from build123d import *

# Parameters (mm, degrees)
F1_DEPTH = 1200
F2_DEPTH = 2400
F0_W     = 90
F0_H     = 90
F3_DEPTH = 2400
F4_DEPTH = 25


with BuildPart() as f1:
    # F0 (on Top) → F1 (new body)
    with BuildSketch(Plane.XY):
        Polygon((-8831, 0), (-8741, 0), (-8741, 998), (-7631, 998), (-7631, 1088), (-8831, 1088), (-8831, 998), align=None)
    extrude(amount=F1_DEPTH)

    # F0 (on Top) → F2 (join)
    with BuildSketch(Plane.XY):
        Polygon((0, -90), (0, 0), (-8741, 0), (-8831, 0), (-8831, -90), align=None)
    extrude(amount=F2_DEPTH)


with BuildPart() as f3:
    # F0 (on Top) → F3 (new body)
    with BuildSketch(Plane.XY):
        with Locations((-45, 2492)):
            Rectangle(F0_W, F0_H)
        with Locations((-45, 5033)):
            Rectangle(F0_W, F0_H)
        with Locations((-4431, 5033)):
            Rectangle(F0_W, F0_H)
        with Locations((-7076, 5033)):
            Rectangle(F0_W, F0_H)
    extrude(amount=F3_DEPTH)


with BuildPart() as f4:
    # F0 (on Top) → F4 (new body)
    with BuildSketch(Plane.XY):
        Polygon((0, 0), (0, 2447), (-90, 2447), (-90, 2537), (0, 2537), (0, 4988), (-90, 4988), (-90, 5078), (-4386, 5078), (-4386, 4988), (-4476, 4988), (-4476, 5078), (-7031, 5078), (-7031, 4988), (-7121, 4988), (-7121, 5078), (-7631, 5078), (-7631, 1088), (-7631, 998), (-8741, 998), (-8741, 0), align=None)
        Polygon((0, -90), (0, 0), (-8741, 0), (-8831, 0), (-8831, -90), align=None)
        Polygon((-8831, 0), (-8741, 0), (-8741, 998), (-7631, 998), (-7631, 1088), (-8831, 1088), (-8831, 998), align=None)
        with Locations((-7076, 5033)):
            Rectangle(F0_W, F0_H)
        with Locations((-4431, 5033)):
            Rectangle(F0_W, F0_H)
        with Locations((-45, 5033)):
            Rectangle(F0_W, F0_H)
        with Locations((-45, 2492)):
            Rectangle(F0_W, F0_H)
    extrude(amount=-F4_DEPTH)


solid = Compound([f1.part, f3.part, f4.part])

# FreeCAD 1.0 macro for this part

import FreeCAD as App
import Part
import Sketcher
Q = App.Units.Quantity

doc = App.newDocument("Part")
body = doc.addObject("PartDesign::Body", "Body")

sketch1 = body.newObject("Sketcher::SketchObject", "Sketch")
sketch1.AttachmentSupport = (doc.getObject("XY_Plane"), [""])
sketch1.MapMode = "FlatFace"
sketch1.addGeometry([
    Part.LineSegment(App.Vector(-8831, 0, 0), App.Vector(-8741, 0, 0)),
    Part.LineSegment(App.Vector(-8741, 0, 0), App.Vector(-8741, 998, 0)),
    Part.LineSegment(App.Vector(-8741, 998, 0), App.Vector(-7631, 998, 0)),
    Part.LineSegment(App.Vector(-7631, 998, 0), App.Vector(-7631, 1088, 0)),
    Part.LineSegment(App.Vector(-7631, 1088, 0), App.Vector(-8831, 1088, 0)),
    Part.LineSegment(App.Vector(-8831, 1088, 0), App.Vector(-8831, 0, 0)),
], False)
sketch1.addConstraint([
    Sketcher.Constraint("Coincident", 0, 2, 1, 1),
    Sketcher.Constraint("Coincident", 1, 2, 2, 1),
    Sketcher.Constraint("Coincident", 2, 2, 3, 1),
    Sketcher.Constraint("Coincident", 3, 2, 4, 1),
    Sketcher.Constraint("Coincident", 4, 2, 5, 1),
    Sketcher.Constraint("Coincident", 5, 2, 0, 1),
    Sketcher.Constraint("Horizontal", 0),
    Sketcher.Constraint("Vertical", 1),
    Sketcher.Constraint("Horizontal", 2),
    Sketcher.Constraint("Vertical", 3),
    Sketcher.Constraint("Horizontal", 4),
    Sketcher.Constraint("Vertical", 5),
    Sketcher.Constraint("PointOnObject", 0, 2, -1),
    Sketcher.Constraint("Equal", 0, 3),
    Sketcher.Constraint("DistanceX", 0, 1, 0, 2, Q("90 mm")),
    Sketcher.Constraint("DistanceX", 2, 1, 2, 2, Q("1110 mm")),
    Sketcher.Constraint("DistanceY", 1, 1, 1, 2, Q("998 mm")),
    Sketcher.Constraint("DistanceX", 0, 2, -1, 1, Q("8741 mm")),
])
pad1 = body.newObject("PartDesign::Pad", "Pad")
pad1.Profile = sketch1
pad1.Length = 1200

sketch2 = body.newObject("Sketcher::SketchObject", "Sketch001")
sketch2.AttachmentSupport = (doc.getObject("XY_Plane"), [""])
sketch2.MapMode = "FlatFace"
sketch2.addGeometry([
    Part.LineSegment(App.Vector(0, -90, 0), App.Vector(0, 0, 0)),
    Part.LineSegment(App.Vector(0, 0, 0), App.Vector(-8831, 0, 0)),
    Part.LineSegment(App.Vector(-8831, 0, 0), App.Vector(-8831, -90, 0)),
    Part.LineSegment(App.Vector(-8831, -90, 0), App.Vector(0, -90, 0)),
], False)
sketch2.addConstraint([
    Sketcher.Constraint("Coincident", 0, 2, 1, 1),
    Sketcher.Constraint("Coincident", 1, 2, 2, 1),
    Sketcher.Constraint("Coincident", 2, 2, 3, 1),
    Sketcher.Constraint("Coincident", 3, 2, 0, 1),
    Sketcher.Constraint("Vertical", 0),
    Sketcher.Constraint("Horizontal", 1),
    Sketcher.Constraint("Vertical", 2),
    Sketcher.Constraint("Horizontal", 3),
    Sketcher.Constraint("Coincident", 0, 2, -1, 1),
    Sketcher.Constraint("DistanceX", 1, 2, 1, 1, Q("8831 mm")),
    Sketcher.Constraint("DistanceY", 0, 1, 0, 2, Q("90 mm")),
])
pad2 = body.newObject("PartDesign::Pad", "Pad001")
pad2.Profile = sketch2
pad2.Length = 2400
body2 = doc.addObject("PartDesign::Body", "Body001")
body2.AllowCompound = True

sketch3 = body2.newObject("Sketcher::SketchObject", "Sketch002")
sketch3.AttachmentSupport = (doc.getObject("XY_Plane001"), [""])
sketch3.MapMode = "FlatFace"
sketch3.addGeometry([
    Part.LineSegment(App.Vector(-90, 2537, 0), App.Vector(-90, 2447, 0)),
    Part.LineSegment(App.Vector(-90, 2447, 0), App.Vector(0, 2447, 0)),
    Part.LineSegment(App.Vector(0, 2447, 0), App.Vector(0, 2537, 0)),
    Part.LineSegment(App.Vector(0, 2537, 0), App.Vector(-90, 2537, 0)),
    Part.LineSegment(App.Vector(-90, 5078, 0), App.Vector(-90, 4988, 0)),
    Part.LineSegment(App.Vector(-90, 4988, 0), App.Vector(0, 4988, 0)),
    Part.LineSegment(App.Vector(0, 4988, 0), App.Vector(0, 5078, 0)),
    Part.LineSegment(App.Vector(0, 5078, 0), App.Vector(-90, 5078, 0)),
    Part.LineSegment(App.Vector(-4476, 5078, 0), App.Vector(-4476, 4988, 0)),
    Part.LineSegment(App.Vector(-4476, 4988, 0), App.Vector(-4386, 4988, 0)),
    Part.LineSegment(App.Vector(-4386, 4988, 0), App.Vector(-4386, 5078, 0)),
    Part.LineSegment(App.Vector(-4386, 5078, 0), App.Vector(-4476, 5078, 0)),
    Part.LineSegment(App.Vector(-7121, 5078, 0), App.Vector(-7121, 4988, 0)),
    Part.LineSegment(App.Vector(-7121, 4988, 0), App.Vector(-7031, 4988, 0)),
    Part.LineSegment(App.Vector(-7031, 4988, 0), App.Vector(-7031, 5078, 0)),
    Part.LineSegment(App.Vector(-7031, 5078, 0), App.Vector(-7121, 5078, 0)),
], False)
sketch3.addConstraint([
    Sketcher.Constraint("Coincident", 0, 2, 1, 1),
    Sketcher.Constraint("Coincident", 1, 2, 2, 1),
    Sketcher.Constraint("Coincident", 2, 2, 3, 1),
    Sketcher.Constraint("Coincident", 3, 2, 0, 1),
    Sketcher.Constraint("Coincident", 4, 2, 5, 1),
    Sketcher.Constraint("Coincident", 5, 2, 6, 1),
    Sketcher.Constraint("Coincident", 6, 2, 7, 1),
    Sketcher.Constraint("Coincident", 7, 2, 4, 1),
    Sketcher.Constraint("Coincident", 8, 2, 9, 1),
    Sketcher.Constraint("Coincident", 9, 2, 10, 1),
    Sketcher.Constraint("Coincident", 10, 2, 11, 1),
    Sketcher.Constraint("Coincident", 11, 2, 8, 1),
    Sketcher.Constraint("Coincident", 12, 2, 13, 1),
    Sketcher.Constraint("Coincident", 13, 2, 14, 1),
    Sketcher.Constraint("Coincident", 14, 2, 15, 1),
    Sketcher.Constraint("Coincident", 15, 2, 12, 1),
    Sketcher.Constraint("Vertical", 0),
    Sketcher.Constraint("Horizontal", 1),
    Sketcher.Constraint("Vertical", 2),
    Sketcher.Constraint("Horizontal", 3),
    Sketcher.Constraint("Vertical", 4),
    Sketcher.Constraint("Horizontal", 5),
    Sketcher.Constraint("Vertical", 6),
    Sketcher.Constraint("Horizontal", 7),
    Sketcher.Constraint("Vertical", 8),
    Sketcher.Constraint("Horizontal", 9),
    Sketcher.Constraint("Vertical", 10),
    Sketcher.Constraint("Horizontal", 11),
    Sketcher.Constraint("Vertical", 12),
    Sketcher.Constraint("Horizontal", 13),
    Sketcher.Constraint("Vertical", 14),
    Sketcher.Constraint("Horizontal", 15),
    Sketcher.Constraint("PointOnObject", 1, 2, -2),
    Sketcher.Constraint("PointOnObject", 5, 2, -2),
    Sketcher.Constraint("Horizontal", 5, 2, 8, 2),
    Sketcher.Constraint("Horizontal", 7, 2, 10, 2),
    Sketcher.Constraint("Horizontal", 9, 2, 12, 2),
    Sketcher.Constraint("Horizontal", 11, 2, 14, 2),
    Sketcher.Constraint("Vertical", 3, 2, 4, 2),
    Sketcher.Constraint("Equal", 7, 9),
    Sketcher.Constraint("Equal", 11, 13),
    Sketcher.Constraint("Equal", 15, 0),
    Sketcher.Constraint("Equal", 2, 4),
    Sketcher.Constraint("DistanceX", 1, 1, 1, 2, Q("90 mm")),
    Sketcher.Constraint("DistanceY", -1, 1, 0, 2, Q("2447 mm")),
    Sketcher.Constraint("DistanceY", -1, 1, 4, 2, Q("4988 mm")),
    Sketcher.Constraint("DistanceX", 8, 2, -1, 1, Q("4476 mm")),
    Sketcher.Constraint("DistanceX", 12, 2, -1, 1, Q("7121 mm")),
])
pad3 = body2.newObject("PartDesign::Pad", "Pad002")
pad3.Profile = sketch3
pad3.Length = 2400
body3 = doc.addObject("PartDesign::Body", "Body002")

sketch4 = body3.newObject("Sketcher::SketchObject", "Sketch003")
sketch4.AttachmentSupport = (doc.getObject("XY_Plane002"), [""])
sketch4.MapMode = "FlatFace"
sketch4.addGeometry([
    Part.LineSegment(App.Vector(0, 5078, 0), App.Vector(-7631, 5078, 0)),
    Part.LineSegment(App.Vector(-7631, 5078, 0), App.Vector(-7631, 1088, 0)),
    Part.LineSegment(App.Vector(-7631, 1088, 0), App.Vector(-8831, 1088, 0)),
    Part.LineSegment(App.Vector(-8831, 1088, 0), App.Vector(-8831, -90, 0)),
    Part.LineSegment(App.Vector(-8831, -90, 0), App.Vector(0, -90, 0)),
    Part.LineSegment(App.Vector(0, -90, 0), App.Vector(0, 5078, 0)),
], False)
sketch4.addConstraint([
    Sketcher.Constraint("Coincident", 0, 2, 1, 1),
    Sketcher.Constraint("Coincident", 1, 2, 2, 1),
    Sketcher.Constraint("Coincident", 2, 2, 3, 1),
    Sketcher.Constraint("Coincident", 3, 2, 4, 1),
    Sketcher.Constraint("Coincident", 4, 2, 5, 1),
    Sketcher.Constraint("Coincident", 5, 2, 0, 1),
    Sketcher.Constraint("Horizontal", 0),
    Sketcher.Constraint("Vertical", 1),
    Sketcher.Constraint("Horizontal", 2),
    Sketcher.Constraint("Vertical", 3),
    Sketcher.Constraint("Horizontal", 4),
    Sketcher.Constraint("Vertical", 5),
    Sketcher.Constraint("PointOnObject", 4, 2, -2),
    Sketcher.Constraint("DistanceX", 0, 2, 0, 1, Q("7631 mm")),
    Sketcher.Constraint("DistanceX", 2, 2, 2, 1, Q("1200 mm")),
    Sketcher.Constraint("DistanceY", 1, 2, 1, 1, Q("3990 mm")),
    Sketcher.Constraint("DistanceY", 3, 2, 3, 1, Q("1178 mm")),
    Sketcher.Constraint("DistanceY", -1, 1, 0, 2, Q("5078 mm")),
])
pad4 = body3.newObject("PartDesign::Pad", "Pad003")
pad4.Profile = sketch4
pad4.Length = 25
pad4.Reversed = True

doc.recompute()
